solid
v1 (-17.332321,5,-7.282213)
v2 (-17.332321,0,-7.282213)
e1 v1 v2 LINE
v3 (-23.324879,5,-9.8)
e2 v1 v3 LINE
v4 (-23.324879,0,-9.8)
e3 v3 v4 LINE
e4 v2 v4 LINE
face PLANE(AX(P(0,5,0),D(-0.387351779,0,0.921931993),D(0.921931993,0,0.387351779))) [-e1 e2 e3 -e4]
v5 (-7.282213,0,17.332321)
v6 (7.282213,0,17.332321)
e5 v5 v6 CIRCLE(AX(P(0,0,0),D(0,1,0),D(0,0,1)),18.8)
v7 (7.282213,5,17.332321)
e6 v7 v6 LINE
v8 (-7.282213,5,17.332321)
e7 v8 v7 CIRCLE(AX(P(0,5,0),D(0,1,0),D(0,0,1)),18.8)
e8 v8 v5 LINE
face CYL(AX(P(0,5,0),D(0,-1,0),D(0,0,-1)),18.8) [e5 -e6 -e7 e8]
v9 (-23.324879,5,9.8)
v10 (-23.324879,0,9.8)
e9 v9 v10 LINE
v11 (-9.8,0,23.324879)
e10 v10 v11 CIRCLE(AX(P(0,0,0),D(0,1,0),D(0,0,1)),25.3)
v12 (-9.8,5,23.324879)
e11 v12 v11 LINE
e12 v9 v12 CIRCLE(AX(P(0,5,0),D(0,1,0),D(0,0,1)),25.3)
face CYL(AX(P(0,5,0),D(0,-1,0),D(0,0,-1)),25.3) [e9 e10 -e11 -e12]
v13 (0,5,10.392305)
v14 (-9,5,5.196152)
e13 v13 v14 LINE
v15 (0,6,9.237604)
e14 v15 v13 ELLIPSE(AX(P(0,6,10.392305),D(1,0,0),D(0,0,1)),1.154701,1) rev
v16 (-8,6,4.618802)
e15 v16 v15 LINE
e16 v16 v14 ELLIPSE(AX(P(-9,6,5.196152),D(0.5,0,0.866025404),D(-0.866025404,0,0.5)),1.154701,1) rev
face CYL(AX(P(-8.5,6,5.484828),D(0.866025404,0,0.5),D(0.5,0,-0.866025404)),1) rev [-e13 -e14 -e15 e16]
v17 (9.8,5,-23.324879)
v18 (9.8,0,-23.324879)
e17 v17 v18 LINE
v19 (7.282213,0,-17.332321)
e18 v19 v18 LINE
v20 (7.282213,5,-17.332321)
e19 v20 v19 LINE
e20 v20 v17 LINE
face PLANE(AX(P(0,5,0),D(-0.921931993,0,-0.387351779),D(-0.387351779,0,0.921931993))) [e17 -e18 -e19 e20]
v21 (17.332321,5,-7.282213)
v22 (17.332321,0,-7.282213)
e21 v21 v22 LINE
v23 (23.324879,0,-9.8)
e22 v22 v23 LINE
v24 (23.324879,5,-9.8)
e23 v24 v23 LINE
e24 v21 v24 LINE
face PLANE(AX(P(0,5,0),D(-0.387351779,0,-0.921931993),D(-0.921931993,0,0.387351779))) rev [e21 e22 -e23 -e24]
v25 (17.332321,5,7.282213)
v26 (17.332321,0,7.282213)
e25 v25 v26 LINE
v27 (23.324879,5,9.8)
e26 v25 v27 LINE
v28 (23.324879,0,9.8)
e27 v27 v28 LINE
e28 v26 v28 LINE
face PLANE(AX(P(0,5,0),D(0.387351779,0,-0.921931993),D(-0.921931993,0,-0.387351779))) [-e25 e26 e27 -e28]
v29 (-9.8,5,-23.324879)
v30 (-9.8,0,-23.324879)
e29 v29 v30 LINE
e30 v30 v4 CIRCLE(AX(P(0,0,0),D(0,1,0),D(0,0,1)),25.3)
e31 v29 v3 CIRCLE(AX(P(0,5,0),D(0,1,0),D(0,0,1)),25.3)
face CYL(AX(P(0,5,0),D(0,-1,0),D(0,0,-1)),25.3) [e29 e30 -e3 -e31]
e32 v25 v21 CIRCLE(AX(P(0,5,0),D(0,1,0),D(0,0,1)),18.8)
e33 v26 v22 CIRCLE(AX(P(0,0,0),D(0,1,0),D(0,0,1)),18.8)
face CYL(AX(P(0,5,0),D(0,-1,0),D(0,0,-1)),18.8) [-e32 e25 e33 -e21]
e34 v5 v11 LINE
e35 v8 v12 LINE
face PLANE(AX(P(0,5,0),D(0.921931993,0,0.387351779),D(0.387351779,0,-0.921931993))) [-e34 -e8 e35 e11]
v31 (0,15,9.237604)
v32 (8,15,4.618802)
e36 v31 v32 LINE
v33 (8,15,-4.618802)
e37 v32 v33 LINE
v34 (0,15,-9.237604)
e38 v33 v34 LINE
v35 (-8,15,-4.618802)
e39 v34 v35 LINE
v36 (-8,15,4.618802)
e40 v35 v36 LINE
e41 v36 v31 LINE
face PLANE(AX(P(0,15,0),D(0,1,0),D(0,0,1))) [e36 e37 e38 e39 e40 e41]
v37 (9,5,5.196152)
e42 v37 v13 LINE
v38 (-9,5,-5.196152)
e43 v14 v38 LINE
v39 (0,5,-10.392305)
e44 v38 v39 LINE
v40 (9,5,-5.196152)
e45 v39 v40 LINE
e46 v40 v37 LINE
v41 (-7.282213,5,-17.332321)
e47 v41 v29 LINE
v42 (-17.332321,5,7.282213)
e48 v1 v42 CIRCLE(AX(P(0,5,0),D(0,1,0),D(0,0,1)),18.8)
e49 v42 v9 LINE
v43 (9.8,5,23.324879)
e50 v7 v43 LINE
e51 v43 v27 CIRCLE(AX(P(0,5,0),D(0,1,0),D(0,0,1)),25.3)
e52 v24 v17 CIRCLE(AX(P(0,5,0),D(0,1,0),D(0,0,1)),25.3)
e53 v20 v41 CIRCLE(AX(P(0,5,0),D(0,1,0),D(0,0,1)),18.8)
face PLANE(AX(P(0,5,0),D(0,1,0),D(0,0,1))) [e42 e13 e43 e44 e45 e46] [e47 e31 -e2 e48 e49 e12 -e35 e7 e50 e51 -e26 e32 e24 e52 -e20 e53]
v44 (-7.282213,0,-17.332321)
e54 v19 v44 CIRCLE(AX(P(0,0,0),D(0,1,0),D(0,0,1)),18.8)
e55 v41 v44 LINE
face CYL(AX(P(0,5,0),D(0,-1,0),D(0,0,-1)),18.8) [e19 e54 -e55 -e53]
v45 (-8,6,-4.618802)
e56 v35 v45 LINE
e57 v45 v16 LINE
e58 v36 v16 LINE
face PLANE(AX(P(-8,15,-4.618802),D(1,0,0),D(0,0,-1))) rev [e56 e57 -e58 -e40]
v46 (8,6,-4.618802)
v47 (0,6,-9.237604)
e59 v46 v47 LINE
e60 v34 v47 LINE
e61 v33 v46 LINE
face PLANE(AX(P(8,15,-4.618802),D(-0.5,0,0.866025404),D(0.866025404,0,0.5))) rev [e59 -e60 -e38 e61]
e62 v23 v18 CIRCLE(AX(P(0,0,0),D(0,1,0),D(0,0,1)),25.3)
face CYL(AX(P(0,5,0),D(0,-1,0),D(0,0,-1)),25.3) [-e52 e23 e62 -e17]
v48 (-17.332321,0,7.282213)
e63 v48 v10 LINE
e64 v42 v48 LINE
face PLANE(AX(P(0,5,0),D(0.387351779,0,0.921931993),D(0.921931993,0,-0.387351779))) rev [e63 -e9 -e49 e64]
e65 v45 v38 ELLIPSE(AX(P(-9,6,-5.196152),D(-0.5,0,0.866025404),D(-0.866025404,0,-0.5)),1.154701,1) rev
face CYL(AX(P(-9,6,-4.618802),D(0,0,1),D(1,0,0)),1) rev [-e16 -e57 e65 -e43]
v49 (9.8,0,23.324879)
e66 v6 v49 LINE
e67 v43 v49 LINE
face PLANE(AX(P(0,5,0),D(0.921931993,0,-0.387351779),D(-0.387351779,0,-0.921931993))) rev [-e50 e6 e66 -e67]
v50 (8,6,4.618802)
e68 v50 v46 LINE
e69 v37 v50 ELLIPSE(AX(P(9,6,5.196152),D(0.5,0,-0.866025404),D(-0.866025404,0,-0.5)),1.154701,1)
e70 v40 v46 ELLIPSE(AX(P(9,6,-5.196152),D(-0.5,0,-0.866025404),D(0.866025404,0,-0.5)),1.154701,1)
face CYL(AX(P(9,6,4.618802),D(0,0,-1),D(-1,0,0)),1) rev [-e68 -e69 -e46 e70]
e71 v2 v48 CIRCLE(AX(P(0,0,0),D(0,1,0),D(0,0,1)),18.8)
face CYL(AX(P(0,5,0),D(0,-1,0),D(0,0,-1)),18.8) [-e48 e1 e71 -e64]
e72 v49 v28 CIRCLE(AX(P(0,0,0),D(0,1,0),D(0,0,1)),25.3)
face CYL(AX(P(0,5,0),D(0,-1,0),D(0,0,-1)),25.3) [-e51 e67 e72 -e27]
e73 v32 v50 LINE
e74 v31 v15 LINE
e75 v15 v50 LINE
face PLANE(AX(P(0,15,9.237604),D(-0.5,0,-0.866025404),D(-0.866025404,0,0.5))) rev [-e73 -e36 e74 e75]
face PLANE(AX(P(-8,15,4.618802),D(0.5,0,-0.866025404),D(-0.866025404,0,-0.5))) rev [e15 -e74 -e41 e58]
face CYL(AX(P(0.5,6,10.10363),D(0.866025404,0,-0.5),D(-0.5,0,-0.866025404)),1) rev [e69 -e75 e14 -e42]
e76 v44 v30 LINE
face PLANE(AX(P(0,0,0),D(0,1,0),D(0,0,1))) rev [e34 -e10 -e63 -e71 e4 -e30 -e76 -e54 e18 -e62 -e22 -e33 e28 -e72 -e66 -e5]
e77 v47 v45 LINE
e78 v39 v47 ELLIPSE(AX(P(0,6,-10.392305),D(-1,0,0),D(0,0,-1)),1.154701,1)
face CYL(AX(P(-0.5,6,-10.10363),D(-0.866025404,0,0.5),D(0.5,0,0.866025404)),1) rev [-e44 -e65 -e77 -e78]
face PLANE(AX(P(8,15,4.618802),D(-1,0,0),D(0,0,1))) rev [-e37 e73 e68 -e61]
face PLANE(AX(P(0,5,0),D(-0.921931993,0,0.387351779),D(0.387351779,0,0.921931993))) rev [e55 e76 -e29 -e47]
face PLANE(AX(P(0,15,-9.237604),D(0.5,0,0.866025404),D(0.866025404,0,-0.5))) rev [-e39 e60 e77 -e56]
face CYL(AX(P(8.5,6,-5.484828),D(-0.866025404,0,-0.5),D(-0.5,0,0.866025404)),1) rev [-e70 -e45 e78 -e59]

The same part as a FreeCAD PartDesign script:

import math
import FreeCAD as App
import Part
import Sketcher

V = App.Vector
Q = App.Units.Quantity


def edges_at(feature, points):
    """Names of the edges that pass closest to the given points."""
    edges = feature.Shape.Edges
    near = lambda p: min(range(len(edges)), key=lambda i: edges[i].distToShape(Part.Vertex(*p))[0])
    return sorted({f"Edge{near(p) + 1}" for p in points})


def add_polygon(sketch, points):
    """Adds a closed chain of lines whose ends are joined by coincident constraints."""
    first, n = sketch.GeometryCount, len(points)
    for a, b in zip(points, points[1:] + points[:1]):
        sketch.addGeometry(Part.LineSegment(App.Vector(*a, 0), App.Vector(*b, 0)), False)
    for i in range(n):
        sketch.addConstraint(Sketcher.Constraint("Coincident", first + i, 2, first + (i + 1) % n, 1))

doc = App.newDocument("Part")
params = doc.addObject("Spreadsheet::Sheet", "Params")
for row, (alias, value) in enumerate([
    ("sketch1_radius", "18.8 mm"),
    ("sketch1_radius2", "25.3 mm"),
    ("pad1_length", "5 mm"),
    ("pad2_length", "10 mm"),
    ("fillet_radius", "1 mm"),
], start=1):
    params.set(f"A{row}", alias)
    params.set(f"B{row}", "=" + value)
    params.setAlias(f"B{row}", alias)

body = doc.addObject("PartDesign::Body", "Body")

# Sketch on XZ plane
sketch1 = body.newObject("Sketcher::SketchObject", "Sketch")
sketch1.AttachmentSupport = (doc.getObject("XZ_Plane"), [""])
sketch1.MapMode = "FlatFace"
sketch1.addGeometry([
    Part.LineSegment(V(-23.324879, -9.8, 0), V(-17.332321, -7.282213, 0)),  # 0
    Part.ArcOfCircle(Part.Circle(V(0, 0, 0), V(0, 0, 1), 18.8), math.radians(157.210181), math.radians(202.789819)),  # 1
    Part.LineSegment(V(-17.332321, 7.282213, 0), V(-23.324879, 9.8, 0)),  # 2
    Part.ArcOfCircle(Part.Circle(V(0, 0, 0), V(0, 0, 1), 25.3), math.radians(112.789819), math.radians(157.210181)),  # 3
    Part.LineSegment(V(-9.8, 23.324879, 0), V(-7.282213, 17.332321, 0)),  # 4
    Part.ArcOfCircle(Part.Circle(V(0, 0, 0), V(0, 0, 1), 18.8), math.radians(67.210181), math.radians(112.789819)),  # 5
    Part.LineSegment(V(7.282213, 17.332321, 0), V(9.8, 23.324879, 0)),  # 6
    Part.ArcOfCircle(Part.Circle(V(0, 0, 0), V(0, 0, 1), 25.3), math.radians(22.789819), math.radians(67.210181)),  # 7
    Part.LineSegment(V(23.324879, 9.8, 0), V(17.332321, 7.282213, 0)),  # 8
    Part.ArcOfCircle(Part.Circle(V(0, 0, 0), V(0, 0, 1), 18.8), math.radians(-22.789819), math.radians(22.789819)),  # 9
    Part.LineSegment(V(17.332321, -7.282213, 0), V(23.324879, -9.8, 0)),  # 10
    Part.ArcOfCircle(Part.Circle(V(0, 0, 0), V(0, 0, 1), 25.3), math.radians(-67.210181), math.radians(-22.789819)),  # 11
    Part.LineSegment(V(9.8, -23.324879, 0), V(7.282213, -17.332321, 0)),  # 12
    Part.ArcOfCircle(Part.Circle(V(0, 0, 0), V(0, 0, 1), 18.8), math.radians(-112.789819), math.radians(-67.210181)),  # 13
    Part.LineSegment(V(-7.282213, -17.332321, 0), V(-9.8, -23.324879, 0)),  # 14
    Part.ArcOfCircle(Part.Circle(V(0, 0, 0), V(0, 0, 1), 25.3), math.radians(-157.210181), math.radians(-112.789819)),  # 15
], False)
sketch1.addConstraint([
    Sketcher.Constraint("Coincident", 0, 2, 1, 2),
    Sketcher.Constraint("Coincident", 1, 1, 2, 1),
    Sketcher.Constraint("Coincident", 2, 2, 3, 2),
    Sketcher.Constraint("Coincident", 3, 1, 4, 1),
    Sketcher.Constraint("Coincident", 4, 2, 5, 2),
    Sketcher.Constraint("Coincident", 5, 1, 6, 1),
    Sketcher.Constraint("Coincident", 6, 2, 7, 2),
    Sketcher.Constraint("Coincident", 7, 1, 8, 1),
    Sketcher.Constraint("Coincident", 8, 2, 9, 2),
    Sketcher.Constraint("Coincident", 9, 1, 10, 1),
    Sketcher.Constraint("Coincident", 10, 2, 11, 2),
    Sketcher.Constraint("Coincident", 11, 1, 12, 1),
    Sketcher.Constraint("Coincident", 12, 2, 13, 2),
    Sketcher.Constraint("Coincident", 13, 1, 14, 1),
    Sketcher.Constraint("Coincident", 14, 2, 15, 2),
    Sketcher.Constraint("Coincident", 15, 1, 0, 1),
    Sketcher.Constraint("Coincident", 1, 3, -1, 1),
    Sketcher.Constraint("Coincident", 3, 3, -1, 1),
    Sketcher.Constraint("Coincident", 5, 3, -1, 1),
    Sketcher.Constraint("Coincident", 7, 3, -1, 1),
    Sketcher.Constraint("Coincident", 9, 3, -1, 1),
    Sketcher.Constraint("Coincident", 11, 3, -1, 1),
    Sketcher.Constraint("Coincident", 13, 3, -1, 1),
    Sketcher.Constraint("Coincident", 15, 3, -1, 1),
    Sketcher.Constraint("Equal", 1, 5),
    Sketcher.Constraint("Equal", 3, 7),
    Sketcher.Constraint("Equal", 5, 9),
    Sketcher.Constraint("Equal", 7, 11),
    Sketcher.Constraint("Equal", 9, 13),
    Sketcher.Constraint("Equal", 11, 15),
    Sketcher.Constraint("Perpendicular", 0, 4),
    Sketcher.Constraint("Perpendicular", 2, 6),
    Sketcher.Constraint("Perpendicular", 4, 8),
    Sketcher.Constraint("Perpendicular", 6, 10),
    Sketcher.Constraint("Perpendicular", 8, 12),
    Sketcher.Constraint("Perpendicular", 10, 14),
    Sketcher.Constraint("Horizontal", 4, 2, 5, 1),
    Sketcher.Constraint("Horizontal", 3, 1, 6, 2),
    Sketcher.Constraint("Horizontal", 2, 2, 7, 1),
    Sketcher.Constraint("Horizontal", 0, 2, 9, 1),
    Sketcher.Constraint("Horizontal", 12, 2, 13, 1),
    Sketcher.Constraint("Vertical", 0, 2, 1, 1),
    Sketcher.Constraint("Vertical", 6, 2, 11, 1),
    Sketcher.Constraint("Radius", 1, 18.8),
    Sketcher.Constraint("Radius", 3, 25.3),
    Sketcher.Constraint("DistanceY", -1, 1, 2, 2, 9.8),
    Sketcher.Constraint("DistanceX", 3, 1, -1, 1, 9.8),
    Sketcher.Constraint("DistanceX", 0, 2, -1, 1, 17.332321),
])
sketch1.setExpression("Constraints[43]", "Params.sketch1_radius")
sketch1.setExpression("Constraints[44]", "Params.sketch1_radius2")
pad1 = body.newObject("PartDesign::Pad", "Pad")
pad1.Profile = sketch1
pad1.setExpression("Length", "Params.pad1_length")
pad1.Reversed = True

# Sketch on XZ plane
sketch2 = body.newObject("Sketcher::SketchObject", "Sketch001")
sketch2.AttachmentSupport = (doc.getObject("XZ_Plane"), [""])
sketch2.MapMode = "FlatFace"
sketch2.AttachmentOffset = App.Placement(V(0, 0, -5), App.Rotation())
add_polygon(sketch2, [(0, -9.237604), (-8, -4.618802), (-8, 4.618802), (0, 9.237604), (8, 4.618802), (8, -4.618802)])  # lines 0-5
sketch2.addConstraint([
    Sketcher.Constraint("Vertical", 1),
    Sketcher.Constraint("Vertical", 4),
    Sketcher.Constraint("Symmetric", 0, 2, 3, 2, -1, 1),
    Sketcher.Constraint("Symmetric", 2, 2, 5, 2, -1, 1),
    Sketcher.Constraint("PointOnObject", 2, 2, -2),
    Sketcher.Constraint("Parallel", 2, 5),
    Sketcher.Constraint("Horizontal", 1, 2, 3, 2),
    Sketcher.Constraint("Angle", 0, Q("150 deg")),
    Sketcher.Constraint("DistanceX", 0, 2, -1, 1, 8.0),
    Sketcher.Constraint("DistanceY", 1, 1, 1, 2, 9.237604),
])
pad2 = body.newObject("PartDesign::Pad", "Pad001")
pad2.Profile = sketch2
pad2.setExpression("Length", "Params.pad2_length")
pad2.Reversed = True
doc.recompute()

fillet = body.newObject("PartDesign::Fillet", "Fillet")
fillet.Base = (pad2, edges_at(pad2, [
    (4, 5, -6.928),
    (-4, 5, -6.928),
    (-8, 5, 0),
    (-4, 5, 6.928),
    (4, 5, 6.928),
    (8, 5, 0),
]))
fillet.setExpression("Radius", "Params.fillet_radius")

doc.recompute()
